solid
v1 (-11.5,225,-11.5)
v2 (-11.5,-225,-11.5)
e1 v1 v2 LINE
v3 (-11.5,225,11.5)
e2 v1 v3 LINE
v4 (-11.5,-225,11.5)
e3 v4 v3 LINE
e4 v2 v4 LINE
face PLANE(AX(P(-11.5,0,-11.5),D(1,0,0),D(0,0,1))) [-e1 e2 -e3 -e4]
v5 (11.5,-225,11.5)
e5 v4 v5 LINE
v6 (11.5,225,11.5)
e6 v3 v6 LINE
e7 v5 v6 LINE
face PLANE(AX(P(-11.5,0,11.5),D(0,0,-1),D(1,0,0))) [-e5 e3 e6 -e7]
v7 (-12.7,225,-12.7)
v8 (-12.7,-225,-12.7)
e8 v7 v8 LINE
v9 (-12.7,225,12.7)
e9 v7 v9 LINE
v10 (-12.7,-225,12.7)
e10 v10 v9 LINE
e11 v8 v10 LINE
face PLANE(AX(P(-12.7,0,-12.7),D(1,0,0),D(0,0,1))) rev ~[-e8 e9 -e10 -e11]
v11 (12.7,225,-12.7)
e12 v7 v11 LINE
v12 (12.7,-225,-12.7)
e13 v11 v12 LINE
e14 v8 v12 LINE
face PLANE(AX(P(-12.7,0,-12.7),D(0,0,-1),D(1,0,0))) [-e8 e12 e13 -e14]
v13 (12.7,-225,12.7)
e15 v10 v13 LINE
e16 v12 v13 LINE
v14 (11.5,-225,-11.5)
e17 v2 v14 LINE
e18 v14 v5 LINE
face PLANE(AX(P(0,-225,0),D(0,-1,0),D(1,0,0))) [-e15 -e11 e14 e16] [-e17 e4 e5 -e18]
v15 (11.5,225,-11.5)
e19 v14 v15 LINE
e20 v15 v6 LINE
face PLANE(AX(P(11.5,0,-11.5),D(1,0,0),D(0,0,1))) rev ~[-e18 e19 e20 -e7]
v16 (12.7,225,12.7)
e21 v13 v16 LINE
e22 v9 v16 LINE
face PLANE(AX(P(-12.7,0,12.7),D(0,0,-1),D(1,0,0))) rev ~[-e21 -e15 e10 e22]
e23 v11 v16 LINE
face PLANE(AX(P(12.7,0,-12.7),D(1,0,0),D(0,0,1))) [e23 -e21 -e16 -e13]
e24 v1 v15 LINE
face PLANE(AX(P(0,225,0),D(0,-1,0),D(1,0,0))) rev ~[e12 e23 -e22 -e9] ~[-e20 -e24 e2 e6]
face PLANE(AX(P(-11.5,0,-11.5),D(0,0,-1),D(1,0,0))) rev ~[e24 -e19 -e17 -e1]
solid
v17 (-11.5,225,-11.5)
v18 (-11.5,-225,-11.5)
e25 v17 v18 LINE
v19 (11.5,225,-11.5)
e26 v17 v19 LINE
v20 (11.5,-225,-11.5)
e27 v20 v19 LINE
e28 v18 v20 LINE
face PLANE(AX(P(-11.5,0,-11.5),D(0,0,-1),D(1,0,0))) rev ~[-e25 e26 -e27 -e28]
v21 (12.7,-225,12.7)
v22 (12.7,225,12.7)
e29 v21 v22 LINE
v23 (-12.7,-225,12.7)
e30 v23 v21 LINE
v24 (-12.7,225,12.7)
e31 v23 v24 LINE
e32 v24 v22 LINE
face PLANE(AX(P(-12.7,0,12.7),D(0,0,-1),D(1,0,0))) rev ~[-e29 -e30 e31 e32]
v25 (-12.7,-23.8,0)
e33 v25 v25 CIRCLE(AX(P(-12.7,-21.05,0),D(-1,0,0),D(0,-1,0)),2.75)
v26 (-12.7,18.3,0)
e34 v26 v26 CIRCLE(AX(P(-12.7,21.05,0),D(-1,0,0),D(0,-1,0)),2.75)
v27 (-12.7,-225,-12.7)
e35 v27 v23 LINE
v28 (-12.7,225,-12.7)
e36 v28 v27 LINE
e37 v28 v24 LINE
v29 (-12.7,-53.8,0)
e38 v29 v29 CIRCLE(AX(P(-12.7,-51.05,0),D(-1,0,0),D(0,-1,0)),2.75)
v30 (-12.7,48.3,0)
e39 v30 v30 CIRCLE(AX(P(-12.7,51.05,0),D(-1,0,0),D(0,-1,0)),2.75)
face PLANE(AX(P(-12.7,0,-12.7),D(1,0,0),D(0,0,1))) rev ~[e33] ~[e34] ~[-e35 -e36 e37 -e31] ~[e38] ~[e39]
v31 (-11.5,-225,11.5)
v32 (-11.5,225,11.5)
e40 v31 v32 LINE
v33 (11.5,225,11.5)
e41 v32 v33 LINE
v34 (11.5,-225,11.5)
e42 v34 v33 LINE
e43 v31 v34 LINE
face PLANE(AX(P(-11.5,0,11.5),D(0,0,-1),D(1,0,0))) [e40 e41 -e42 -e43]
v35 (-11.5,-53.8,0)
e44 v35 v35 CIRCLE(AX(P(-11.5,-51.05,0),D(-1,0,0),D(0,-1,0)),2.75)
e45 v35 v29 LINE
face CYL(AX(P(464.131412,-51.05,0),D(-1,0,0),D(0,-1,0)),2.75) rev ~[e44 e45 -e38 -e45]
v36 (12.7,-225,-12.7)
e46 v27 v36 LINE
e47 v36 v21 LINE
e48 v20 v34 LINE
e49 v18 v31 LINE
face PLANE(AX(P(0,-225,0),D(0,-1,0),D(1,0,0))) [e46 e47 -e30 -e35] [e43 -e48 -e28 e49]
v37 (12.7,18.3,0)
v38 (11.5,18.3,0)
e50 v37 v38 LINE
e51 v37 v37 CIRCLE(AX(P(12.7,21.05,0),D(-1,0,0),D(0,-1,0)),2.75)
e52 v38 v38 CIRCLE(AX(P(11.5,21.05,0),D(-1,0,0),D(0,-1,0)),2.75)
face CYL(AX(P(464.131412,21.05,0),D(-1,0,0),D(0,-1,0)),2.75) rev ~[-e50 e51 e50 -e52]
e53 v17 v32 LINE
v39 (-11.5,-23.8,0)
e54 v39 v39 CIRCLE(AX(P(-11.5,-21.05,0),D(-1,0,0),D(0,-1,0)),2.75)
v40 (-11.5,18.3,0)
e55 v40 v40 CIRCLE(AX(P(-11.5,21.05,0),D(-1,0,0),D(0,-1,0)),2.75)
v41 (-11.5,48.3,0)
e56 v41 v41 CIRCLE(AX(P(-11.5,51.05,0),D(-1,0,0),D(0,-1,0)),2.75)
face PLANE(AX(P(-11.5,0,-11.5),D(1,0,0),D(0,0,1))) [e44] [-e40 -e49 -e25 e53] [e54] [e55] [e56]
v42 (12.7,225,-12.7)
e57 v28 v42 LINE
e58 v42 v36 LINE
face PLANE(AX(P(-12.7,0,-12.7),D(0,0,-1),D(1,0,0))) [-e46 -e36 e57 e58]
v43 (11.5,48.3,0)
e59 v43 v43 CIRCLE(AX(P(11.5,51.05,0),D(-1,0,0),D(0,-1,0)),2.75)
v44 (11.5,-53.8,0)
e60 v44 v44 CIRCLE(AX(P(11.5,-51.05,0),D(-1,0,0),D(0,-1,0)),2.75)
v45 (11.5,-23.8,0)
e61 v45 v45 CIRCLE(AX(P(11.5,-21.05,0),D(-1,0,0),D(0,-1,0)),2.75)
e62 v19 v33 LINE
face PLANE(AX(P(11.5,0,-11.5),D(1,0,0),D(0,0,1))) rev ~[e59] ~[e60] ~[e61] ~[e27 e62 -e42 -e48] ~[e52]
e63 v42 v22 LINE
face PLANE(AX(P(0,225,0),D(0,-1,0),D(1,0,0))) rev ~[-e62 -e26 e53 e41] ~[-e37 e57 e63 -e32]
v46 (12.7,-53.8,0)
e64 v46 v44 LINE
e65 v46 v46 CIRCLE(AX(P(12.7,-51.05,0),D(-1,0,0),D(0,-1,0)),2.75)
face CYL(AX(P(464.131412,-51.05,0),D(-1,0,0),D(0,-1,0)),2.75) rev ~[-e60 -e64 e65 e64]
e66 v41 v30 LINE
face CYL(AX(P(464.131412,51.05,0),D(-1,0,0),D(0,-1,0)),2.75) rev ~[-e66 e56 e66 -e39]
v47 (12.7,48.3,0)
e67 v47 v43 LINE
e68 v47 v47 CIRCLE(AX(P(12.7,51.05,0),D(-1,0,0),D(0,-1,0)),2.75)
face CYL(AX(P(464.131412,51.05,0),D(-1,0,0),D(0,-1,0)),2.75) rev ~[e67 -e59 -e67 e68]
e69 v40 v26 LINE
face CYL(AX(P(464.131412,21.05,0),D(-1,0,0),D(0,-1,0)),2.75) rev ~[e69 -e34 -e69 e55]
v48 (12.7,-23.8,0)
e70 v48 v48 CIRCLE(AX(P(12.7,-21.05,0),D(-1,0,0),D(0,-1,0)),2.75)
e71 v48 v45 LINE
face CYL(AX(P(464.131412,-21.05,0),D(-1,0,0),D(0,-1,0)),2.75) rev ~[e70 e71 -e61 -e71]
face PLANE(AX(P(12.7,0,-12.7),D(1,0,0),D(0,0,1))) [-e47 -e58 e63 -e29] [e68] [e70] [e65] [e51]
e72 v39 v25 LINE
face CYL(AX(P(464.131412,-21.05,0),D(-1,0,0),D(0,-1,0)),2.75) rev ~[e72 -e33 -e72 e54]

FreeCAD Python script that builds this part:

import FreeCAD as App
import Part
import Sketcher

V = App.Vector
Q = App.Units.Quantity

doc = App.newDocument("Part")
body = doc.addObject("PartDesign::Body", "Body")

# Sketch on XZ plane
sketch1 = doc.addObject("Sketcher::SketchObject", "Sketch")
body.addObject(sketch1)
sketch1.AttachmentSupport = (doc.XZ_Plane, [""])
sketch1.MapMode = "FlatFace"
sketch1.addGeometry([
    Part.LineSegment(V(-12.7, 12.7, 0), V(-12.7, -12.7, 0)),  # 0
    Part.LineSegment(V(-12.7, -12.7, 0), V(12.7, -12.7, 0)),  # 1
    Part.LineSegment(V(12.7, -12.7, 0), V(12.7, 12.7, 0)),  # 2
    Part.LineSegment(V(12.7, 12.7, 0), V(-12.7, 12.7, 0)),  # 3
    Part.LineSegment(V(11.5, -11.5, 0), V(-11.5, -11.5, 0)),  # 4
    Part.LineSegment(V(-11.5, -11.5, 0), V(-11.5, 11.5, 0)),  # 5
    Part.LineSegment(V(-11.5, 11.5, 0), V(11.5, 11.5, 0)),  # 6
    Part.LineSegment(V(11.5, 11.5, 0), V(11.5, -11.5, 0)),  # 7
], False)
sketch1.addConstraint([
    Sketcher.Constraint("Coincident", 0, 2, 1, 1),
    Sketcher.Constraint("Coincident", 1, 2, 2, 1),
    Sketcher.Constraint("Coincident", 2, 2, 3, 1),
    Sketcher.Constraint("Coincident", 3, 2, 0, 1),
    Sketcher.Constraint("Coincident", 4, 2, 5, 1),
    Sketcher.Constraint("Coincident", 5, 2, 6, 1),
    Sketcher.Constraint("Coincident", 6, 2, 7, 1),
    Sketcher.Constraint("Coincident", 7, 2, 4, 1),
    Sketcher.Constraint("Vertical", 0),
    Sketcher.Constraint("Horizontal", 1),
    Sketcher.Constraint("Vertical", 2),
    Sketcher.Constraint("Horizontal", 3),
    Sketcher.Constraint("Horizontal", 4),
    Sketcher.Constraint("Vertical", 5),
    Sketcher.Constraint("Horizontal", 6),
    Sketcher.Constraint("Vertical", 7),
    Sketcher.Constraint("Symmetric", 0, 2, 2, 2, -1, 1),
    Sketcher.Constraint("Symmetric", 4, 2, 6, 2, -1, 1),
    Sketcher.Constraint("Equal", 3, 0),
    Sketcher.Constraint("Equal", 6, 5),
    Sketcher.Constraint("DistanceX", 4, 2, 4, 1, Q("23 mm")),
    Sketcher.Constraint("DistanceX", 1, 1, 1, 2, Q("25.4 mm")),
])
pad1 = doc.addObject("PartDesign::Pad", "Pad")
body.addObject(pad1)
pad1.Profile = sketch1
pad1.Length = 450
pad1.Midplane = True
body2 = doc.addObject("PartDesign::Body", "Body001")

# Sketch on XZ plane
sketch2 = doc.addObject("Sketcher::SketchObject", "Sketch001")
body2.addObject(sketch2)
sketch2.AttachmentSupport = (doc.getObject("XZ_Plane001"), [""])
sketch2.MapMode = "FlatFace"
sketch2.addGeometry([
    Part.LineSegment(V(-12.7, 12.7, 0), V(-12.7, -12.7, 0)),  # 0
    Part.LineSegment(V(-12.7, -12.7, 0), V(12.7, -12.7, 0)),  # 1
    Part.LineSegment(V(12.7, -12.7, 0), V(12.7, 12.7, 0)),  # 2
    Part.LineSegment(V(12.7, 12.7, 0), V(-12.7, 12.7, 0)),  # 3
    Part.LineSegment(V(11.5, -11.5, 0), V(-11.5, -11.5, 0)),  # 4
    Part.LineSegment(V(-11.5, -11.5, 0), V(-11.5, 11.5, 0)),  # 5
    Part.LineSegment(V(-11.5, 11.5, 0), V(11.5, 11.5, 0)),  # 6
    Part.LineSegment(V(11.5, 11.5, 0), V(11.5, -11.5, 0)),  # 7
], False)
sketch2.addConstraint([
    Sketcher.Constraint("Coincident", 0, 2, 1, 1),
    Sketcher.Constraint("Coincident", 1, 2, 2, 1),
    Sketcher.Constraint("Coincident", 2, 2, 3, 1),
    Sketcher.Constraint("Coincident", 3, 2, 0, 1),
    Sketcher.Constraint("Coincident", 4, 2, 5, 1),
    Sketcher.Constraint("Coincident", 5, 2, 6, 1),
    Sketcher.Constraint("Coincident", 6, 2, 7, 1),
    Sketcher.Constraint("Coincident", 7, 2, 4, 1),
    Sketcher.Constraint("Vertical", 0),
    Sketcher.Constraint("Horizontal", 1),
    Sketcher.Constraint("Vertical", 2),
    Sketcher.Constraint("Horizontal", 3),
    Sketcher.Constraint("Horizontal", 4),
    Sketcher.Constraint("Vertical", 5),
    Sketcher.Constraint("Horizontal", 6),
    Sketcher.Constraint("Vertical", 7),
    Sketcher.Constraint("Symmetric", 0, 2, 2, 2, -1, 1),
    Sketcher.Constraint("Symmetric", 4, 2, 6, 2, -1, 1),
    Sketcher.Constraint("Equal", 3, 0),
    Sketcher.Constraint("Equal", 6, 5),
    Sketcher.Constraint("DistanceX", 4, 2, 4, 1, Q("23 mm")),
    Sketcher.Constraint("DistanceX", 1, 1, 1, 2, Q("25.4 mm")),
])
pad2 = doc.addObject("PartDesign::Pad", "Pad001")
body2.addObject(pad2)
pad2.Profile = sketch2
pad2.Length = 450
pad2.Midplane = True

# Sketch on YZ plane
sketch3 = doc.addObject("Sketcher::SketchObject", "Sketch002")
body2.addObject(sketch3)
sketch3.AttachmentSupport = (doc.getObject("YZ_Plane001"), [""])
sketch3.MapMode = "FlatFace"
sketch3.AttachmentOffset = App.Placement(V(0, 0, 12.7), App.Rotation())
sketch3.addGeometry([
    Part.Circle(V(-51.05, 0, 0), V(0, 0, 1), 2.75),
    Part.Circle(V(-21.05, 0, 0), V(0, 0, 1), 2.75),
    Part.Circle(V(21.05, 0, 0), V(0, 0, 1), 2.75),
    Part.Circle(V(51.05, 0, 0), V(0, 0, 1), 2.75),
], False)
sketch3.addConstraint([
    Sketcher.Constraint("Equal", 0, 1),
    Sketcher.Constraint("Equal", 1, 2),
    Sketcher.Constraint("Equal", 2, 3),
    Sketcher.Constraint("Symmetric", 1, 3, 2, 3, -1, 1),
    Sketcher.Constraint("Symmetric", 0, 3, 3, 3, -1, 1),
    Sketcher.Constraint("PointOnObject", 0, 3, -1),
    Sketcher.Constraint("PointOnObject", 1, 3, -1),
    Sketcher.Constraint("Diameter", 0, Q("5.5 mm")),
    Sketcher.Constraint("DistanceX", 0, 3, 1, 3, Q("30 mm")),
    Sketcher.Constraint("DistanceX", 1, 3, 2, 3, Q("42.1 mm")),
])
doc.recompute()
hole = doc.addObject("PartDesign::Hole", "Hole")
body2.addObject(hole)
hole.Profile = sketch3
hole.ThreadType = "None"
hole.Diameter = 5.5
hole.DepthType = "ThroughAll"

doc.recompute()
